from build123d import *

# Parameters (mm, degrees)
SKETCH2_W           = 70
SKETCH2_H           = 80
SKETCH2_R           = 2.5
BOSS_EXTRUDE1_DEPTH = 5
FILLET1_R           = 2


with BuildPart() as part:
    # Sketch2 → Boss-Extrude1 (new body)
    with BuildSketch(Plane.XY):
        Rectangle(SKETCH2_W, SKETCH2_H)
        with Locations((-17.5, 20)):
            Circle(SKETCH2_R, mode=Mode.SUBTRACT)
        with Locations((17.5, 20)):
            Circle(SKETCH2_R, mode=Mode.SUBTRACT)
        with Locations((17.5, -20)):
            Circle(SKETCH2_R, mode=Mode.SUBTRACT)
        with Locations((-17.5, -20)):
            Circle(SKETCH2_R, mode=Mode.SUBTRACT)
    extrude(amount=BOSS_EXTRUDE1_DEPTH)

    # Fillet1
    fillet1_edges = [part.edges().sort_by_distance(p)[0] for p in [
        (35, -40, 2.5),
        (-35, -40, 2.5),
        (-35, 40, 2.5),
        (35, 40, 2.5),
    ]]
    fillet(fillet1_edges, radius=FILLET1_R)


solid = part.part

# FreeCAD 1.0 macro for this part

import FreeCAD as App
import Part
import Sketcher

V = App.Vector
Q = App.Units.Quantity


def edges_at(feature, points):
    """Names of the edges that pass closest to the given points."""
    edges = feature.Shape.Edges
    near = lambda p: min(range(len(edges)), key=lambda i: edges[i].distToShape(Part.Vertex(*p))[0])
    return sorted({f"Edge{near(p) + 1}" for p in points})

doc = App.newDocument("Part")
body = doc.addObject("PartDesign::Body", "Body")

# Sketch on XY plane
sketch1 = doc.addObject("Sketcher::SketchObject", "Sketch")
body.addObject(sketch1)
sketch1.AttachmentSupport = (doc.XY_Plane, [""])
sketch1.MapMode = "FlatFace"
sketch1.addGeometry(Part.LineSegment(V(-35, 40, 0), V(-35, -40, 0)), False)
sketch1.addGeometry(Part.LineSegment(V(-35, -40, 0), V(35, -40, 0)), False)
sketch1.addGeometry(Part.LineSegment(V(35, -40, 0), V(35, 40, 0)), False)
sketch1.addGeometry(Part.LineSegment(V(35, 40, 0), V(-35, 40, 0)), False)
sketch1.addGeometry(Part.Circle(V(-17.5, -20, 0), V(0, 0, 1), 2.5), False)
sketch1.addGeometry(Part.Circle(V(17.5, -20, 0), V(0, 0, 1), 2.5), False)
sketch1.addGeometry(Part.Circle(V(-17.5, 20, 0), V(0, 0, 1), 2.5), False)
sketch1.addGeometry(Part.Circle(V(17.5, 20, 0), V(0, 0, 1), 2.5), False)
sketch1.addConstraint(Sketcher.Constraint("Coincident", 0, 2, 1, 1))
sketch1.addConstraint(Sketcher.Constraint("Coincident", 1, 2, 2, 1))
sketch1.addConstraint(Sketcher.Constraint("Coincident", 2, 2, 3, 1))
sketch1.addConstraint(Sketcher.Constraint("Coincident", 3, 2, 0, 1))
sketch1.addConstraint(Sketcher.Constraint("Vertical", 0))
sketch1.addConstraint(Sketcher.Constraint("Horizontal", 1))
sketch1.addConstraint(Sketcher.Constraint("Vertical", 2))
sketch1.addConstraint(Sketcher.Constraint("Horizontal", 3))
sketch1.addConstraint(Sketcher.Constraint("Equal", 4, 5))
sketch1.addConstraint(Sketcher.Constraint("Equal", 5, 6))
sketch1.addConstraint(Sketcher.Constraint("Equal", 6, 7))
sketch1.addConstraint(Sketcher.Constraint("Symmetric", 5, 3, 6, 3, -1, 1))
sketch1.addConstraint(Sketcher.Constraint("Symmetric", 4, 3, 7, 3, -1, 1))
sketch1.addConstraint(Sketcher.Constraint("Symmetric", 0, 2, 2, 2, -1, 1))
sketch1.addConstraint(Sketcher.Constraint("Symmetric", 4, 3, 5, 3, -2))
sketch1.addConstraint(Sketcher.Constraint("Diameter", 4, Q("5 mm")))
sketch1.addConstraint(Sketcher.Constraint("DistanceX", 1, 1, 1, 2, Q("70 mm")))
sketch1.addConstraint(Sketcher.Constraint("DistanceY", 0, 2, 0, 1, Q("80 mm")))
sketch1.addConstraint(Sketcher.Constraint("DistanceY", 4, 3, -1, 1, Q("20 mm")))
sketch1.addConstraint(Sketcher.Constraint("DistanceX", 4, 3, 5, 3, Q("35 mm")))
pad1 = doc.addObject("PartDesign::Pad", "Pad")
body.addObject(pad1)
pad1.Profile = sketch1
pad1.Length = 5
doc.recompute()

fillet = doc.addObject("PartDesign::Fillet", "Fillet")
body.addObject(fillet)
fillet.Base = (pad1, edges_at(pad1, [
    (35, -40, 2.5),
    (-35, -40, 2.5),
    (-35, 40, 2.5),
    (35, 40, 2.5),
]))
fillet.Radius = 2

doc.recompute()
